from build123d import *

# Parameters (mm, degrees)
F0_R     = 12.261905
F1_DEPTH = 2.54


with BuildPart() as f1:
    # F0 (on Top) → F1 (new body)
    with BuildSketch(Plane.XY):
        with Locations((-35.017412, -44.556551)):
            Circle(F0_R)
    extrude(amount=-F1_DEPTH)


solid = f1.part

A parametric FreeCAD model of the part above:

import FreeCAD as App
import Part
import Sketcher
Q = App.Units.Quantity

doc = App.newDocument("Part")
body = doc.addObject("PartDesign::Body", "Body")

sketch1 = doc.addObject("Sketcher::SketchObject", "Sketch")
body.addObject(sketch1)
sketch1.AttachmentSupport = (doc.XY_Plane, [""])
sketch1.MapMode = "FlatFace"
sketch1.addGeometry(Part.Circle(App.Vector(-35.017412, -44.556551, 0), App.Vector(0, 0, 1), 12.261905), False)
sketch1.addConstraint(Sketcher.Constraint("Diameter", 0, 24.52381))
sketch1.addConstraint(Sketcher.Constraint("DistanceY", 0, 3, -1, 1, 44.556551))
sketch1.addConstraint(Sketcher.Constraint("DistanceX", 0, 3, -1, 1, 35.017412))
pad1 = doc.addObject("PartDesign::Pad", "Pad")
body.addObject(pad1)
pad1.Profile = sketch1
pad1.Length = Q("0.1 in")
pad1.Reversed = True

doc.recompute()
